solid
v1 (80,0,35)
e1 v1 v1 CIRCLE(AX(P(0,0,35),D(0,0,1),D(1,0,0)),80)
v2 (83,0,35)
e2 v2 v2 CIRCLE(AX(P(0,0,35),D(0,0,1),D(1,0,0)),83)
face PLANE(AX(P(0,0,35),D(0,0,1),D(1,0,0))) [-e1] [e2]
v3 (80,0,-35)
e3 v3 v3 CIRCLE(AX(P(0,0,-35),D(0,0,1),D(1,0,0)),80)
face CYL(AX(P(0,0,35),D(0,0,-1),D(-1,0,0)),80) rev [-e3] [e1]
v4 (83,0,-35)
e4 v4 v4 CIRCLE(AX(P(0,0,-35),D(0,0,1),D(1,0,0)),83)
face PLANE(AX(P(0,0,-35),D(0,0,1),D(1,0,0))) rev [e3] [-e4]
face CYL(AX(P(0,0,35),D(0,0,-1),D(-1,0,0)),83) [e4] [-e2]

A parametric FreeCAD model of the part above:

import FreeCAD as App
import Part
import Sketcher
Q = App.Units.Quantity

doc = App.newDocument("Part")
body = doc.addObject("PartDesign::Body", "Body")

sketch1 = body.newObject("Sketcher::SketchObject", "Sketch")
sketch1.AttachmentSupport = (doc.getObject("XY_Plane"), [""])
sketch1.MapMode = "FlatFace"
sketch1.AttachmentOffset = App.Placement(App.Vector(0, 0, -35), App.Rotation())
sketch1.addGeometry(Part.Circle(App.Vector(0, 0, 0), App.Vector(0, 0, 1), 83), False)
sketch1.addGeometry(Part.Circle(App.Vector(0, 0, 0), App.Vector(0, 0, 1), 80), False)
sketch1.addConstraint(Sketcher.Constraint("Coincident", 0, 3, -1, 1))
sketch1.addConstraint(Sketcher.Constraint("Coincident", 1, 3, -1, 1))
sketch1.addConstraint(Sketcher.Constraint("Diameter", 0, Q("166 mm")))
sketch1.addConstraint(Sketcher.Constraint("Diameter", 1, Q("160 mm")))
pad1 = body.newObject("PartDesign::Pad", "Pad")
pad1.Profile = sketch1
pad1.Length = 70

doc.recompute()
